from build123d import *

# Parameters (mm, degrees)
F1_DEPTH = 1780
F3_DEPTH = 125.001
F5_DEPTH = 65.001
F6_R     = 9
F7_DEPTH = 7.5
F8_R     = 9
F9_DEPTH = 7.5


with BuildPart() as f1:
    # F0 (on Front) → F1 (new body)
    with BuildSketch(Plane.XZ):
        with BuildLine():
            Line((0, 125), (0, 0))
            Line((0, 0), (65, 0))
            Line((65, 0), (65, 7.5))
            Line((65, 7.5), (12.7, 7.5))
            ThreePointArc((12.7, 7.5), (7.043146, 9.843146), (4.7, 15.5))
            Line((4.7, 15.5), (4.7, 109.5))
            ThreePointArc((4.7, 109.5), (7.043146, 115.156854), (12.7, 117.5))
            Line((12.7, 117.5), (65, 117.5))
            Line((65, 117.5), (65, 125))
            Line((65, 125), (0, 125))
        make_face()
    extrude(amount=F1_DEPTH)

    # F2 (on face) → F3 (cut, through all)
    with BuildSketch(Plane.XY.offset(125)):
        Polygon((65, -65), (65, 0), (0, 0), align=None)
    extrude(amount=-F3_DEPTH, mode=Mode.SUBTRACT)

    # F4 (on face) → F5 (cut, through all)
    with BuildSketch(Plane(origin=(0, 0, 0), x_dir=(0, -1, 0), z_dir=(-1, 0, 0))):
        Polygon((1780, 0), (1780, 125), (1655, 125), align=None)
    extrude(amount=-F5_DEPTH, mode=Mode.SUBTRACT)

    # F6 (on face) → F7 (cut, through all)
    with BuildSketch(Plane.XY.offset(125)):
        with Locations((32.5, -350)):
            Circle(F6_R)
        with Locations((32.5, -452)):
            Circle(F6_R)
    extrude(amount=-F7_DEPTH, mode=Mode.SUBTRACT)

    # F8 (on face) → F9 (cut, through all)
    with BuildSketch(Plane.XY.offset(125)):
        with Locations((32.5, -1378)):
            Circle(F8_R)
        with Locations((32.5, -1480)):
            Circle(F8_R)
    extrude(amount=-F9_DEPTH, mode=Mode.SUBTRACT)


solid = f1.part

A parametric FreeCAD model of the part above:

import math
import FreeCAD as App
import Part
import Sketcher
from FreeCAD import Vector


def add_polygon(sketch, points):
    """Adds a closed chain of lines whose ends are joined by coincident constraints."""
    first, n = sketch.GeometryCount, len(points)
    for a, b in zip(points, points[1:] + points[:1]):
        sketch.addGeometry(Part.LineSegment(App.Vector(*a, 0), App.Vector(*b, 0)), False)
    for i in range(n):
        sketch.addConstraint(Sketcher.Constraint("Coincident", first + i, 2, first + (i + 1) % n, 1))

doc = App.newDocument("Part")
body = doc.addObject("PartDesign::Body", "Body")

sketch1 = doc.addObject("Sketcher::SketchObject", "Sketch")
body.addObject(sketch1)
sketch1.AttachmentSupport = (doc.XZ_Plane, [""])
sketch1.MapMode = "FlatFace"
sketch1.addGeometry([
    Part.LineSegment(Vector(0, 125, 0), Vector(0, 0, 0)),
    Part.LineSegment(Vector(0, 0, 0), Vector(65, 0, 0)),
    Part.LineSegment(Vector(65, 0, 0), Vector(65, 8, 0)),
    Part.LineSegment(Vector(65, 8, 0), Vector(13, 8, 0)),
    Part.ArcOfCircle(Part.Circle(Vector(13, 16, 0), Vector(0, 0, 1), 8), math.radians(-180), math.radians(-90)),
    Part.LineSegment(Vector(5, 16, 0), Vector(5, 110, 0)),
    Part.ArcOfCircle(Part.Circle(Vector(13, 109, 0), Vector(0, 0, 1), 8), math.radians(90), math.radians(180)),
    Part.LineSegment(Vector(13, 118, 0), Vector(65, 118, 0)),
    Part.LineSegment(Vector(65, 118, 0), Vector(65, 125, 0)),
    Part.LineSegment(Vector(65, 125, 0), Vector(0, 125, 0)),
], False)
sketch1.addConstraint([
    Sketcher.Constraint("Coincident", 0, 2, 1, 1),
    Sketcher.Constraint("Coincident", 1, 2, 2, 1),
    Sketcher.Constraint("Coincident", 2, 2, 3, 1),
    Sketcher.Constraint("Tangent", 3, 2, 4, 2),
    Sketcher.Constraint("Tangent", 4, 1, 5, 1),
    Sketcher.Constraint("Tangent", 5, 2, 6, 2),
    Sketcher.Constraint("Tangent", 6, 1, 7, 1),
    Sketcher.Constraint("Coincident", 7, 2, 8, 1),
    Sketcher.Constraint("Coincident", 8, 2, 9, 1),
    Sketcher.Constraint("Coincident", 9, 2, 0, 1),
    Sketcher.Constraint("Vertical", 0),
    Sketcher.Constraint("Horizontal", 1),
    Sketcher.Constraint("Vertical", 2),
    Sketcher.Constraint("Horizontal", 3),
    Sketcher.Constraint("Vertical", 5),
    Sketcher.Constraint("Horizontal", 7),
    Sketcher.Constraint("Vertical", 8),
    Sketcher.Constraint("Horizontal", 9),
    Sketcher.Constraint("Coincident", 0, 2, -1, 1),
    Sketcher.Constraint("Equal", 4, 6),
    Sketcher.Constraint("Vertical", 2, 2, 7, 2),
    Sketcher.Constraint("Equal", 2, 8),
    Sketcher.Constraint("Radius", 4, 8.000001),
    Sketcher.Constraint("DistanceX", 1, 1, 1, 2, 65.0),
    Sketcher.Constraint("DistanceY", 0, 2, 0, 1, 125.0),
    Sketcher.Constraint("DistanceY", 5, 1, 5, 2, 94.0),
    Sketcher.Constraint("DistanceX", 3, 2, 3, 1, 52.3),
])
pad1 = doc.addObject("PartDesign::Pad", "Pad")
body.addObject(pad1)
pad1.Profile = sketch1
pad1.Length = 1780

sketch2 = doc.addObject("Sketcher::SketchObject", "Sketch001")
body.addObject(sketch2)
sketch2.AttachmentSupport = (doc.XY_Plane, [""])
sketch2.MapMode = "FlatFace"
sketch2.AttachmentOffset = App.Placement(Vector(0, 0, 125), App.Rotation())
add_polygon(sketch2, [(65, -65), (65, 0), (0, 0)])
sketch2.addConstraint([
    Sketcher.Constraint("Vertical", 0),
    Sketcher.Constraint("Horizontal", 1),
    Sketcher.Constraint("Coincident", 1, 2, -1, 1),
    Sketcher.Constraint("Equal", 1, 0),
    Sketcher.Constraint("DistanceX", 1, 2, 1, 1, 65.0),
])
pocket1 = doc.addObject("PartDesign::Pocket", "Pocket")
body.addObject(pocket1)
pocket1.Profile = sketch2
pocket1.Type = "ThroughAll"

sketch3 = doc.addObject("Sketcher::SketchObject", "Sketch002")
body.addObject(sketch3)
sketch3.AttachmentSupport = (doc.YZ_Plane, [""])
sketch3.MapMode = "FlatFace"
add_polygon(sketch3, [(-1780, 0), (-1780, 125), (-1655, 125)])
sketch3.addConstraint([
    Sketcher.Constraint("Vertical", 0),
    Sketcher.Constraint("Horizontal", 1),
    Sketcher.Constraint("PointOnObject", 2, 2, -1),
    Sketcher.Constraint("Equal", 1, 0),
    Sketcher.Constraint("DistanceX", 1, 1, 1, 2, 125.0),
    Sketcher.Constraint("DistanceX", 0, 2, -1, 1, 1780.0),
])
pocket2 = doc.addObject("PartDesign::Pocket", "Pocket001")
body.addObject(pocket2)
pocket2.Profile = sketch3
pocket2.Type = "ThroughAll"
pocket2.Reversed = True

sketch4 = doc.addObject("Sketcher::SketchObject", "Sketch003")
body.addObject(sketch4)
sketch4.AttachmentSupport = (doc.XY_Plane, [""])
sketch4.MapMode = "FlatFace"
sketch4.AttachmentOffset = App.Placement(Vector(0, 0, 125), App.Rotation())
sketch4.addGeometry([
    Part.Circle(Vector(32, -350, 0), Vector(0, 0, 1), 9),
    Part.Circle(Vector(32, -452, 0), Vector(0, 0, 1), 9),
], False)
sketch4.addConstraint([
    Sketcher.Constraint("Equal", 0, 1),
    Sketcher.Constraint("Vertical", 0, 3, 1, 3),
    Sketcher.Constraint("Diameter", 0, 18.0),
    Sketcher.Constraint("DistanceY", 0, 3, -1, 1, 350.0),
    Sketcher.Constraint("DistanceY", 1, 3, -1, 1, 452.0),
    Sketcher.Constraint("DistanceX", -1, 1, 0, 3, 32.5),
])
pocket3 = doc.addObject("PartDesign::Pocket", "Pocket002")
body.addObject(pocket3)
pocket3.Profile = sketch4
pocket3.Length = 7.5

sketch5 = doc.addObject("Sketcher::SketchObject", "Sketch004")
body.addObject(sketch5)
sketch5.AttachmentSupport = (doc.XY_Plane, [""])
sketch5.MapMode = "FlatFace"
sketch5.AttachmentOffset = App.Placement(Vector(0, 0, 125), App.Rotation())
sketch5.addGeometry([
    Part.Circle(Vector(32, -1378, 0), Vector(0, 0, 1), 9),
    Part.Circle(Vector(32, -1480, 0), Vector(0, 0, 1), 9),
], False)
sketch5.addConstraint([
    Sketcher.Constraint("Equal", 0, 1),
    Sketcher.Constraint("Vertical", 0, 3, 1, 3),
    Sketcher.Constraint("Diameter", 0, 18.0),
    Sketcher.Constraint("DistanceY", 0, 3, -1, 1, 1378.0),
    Sketcher.Constraint("DistanceY", 1, 3, -1, 1, 1480.0),
    Sketcher.Constraint("DistanceX", -1, 1, 0, 3, 32.5),
])
pocket4 = doc.addObject("PartDesign::Pocket", "Pocket003")
body.addObject(pocket4)
pocket4.Profile = sketch5
pocket4.Length = 7.5

doc.recompute()
